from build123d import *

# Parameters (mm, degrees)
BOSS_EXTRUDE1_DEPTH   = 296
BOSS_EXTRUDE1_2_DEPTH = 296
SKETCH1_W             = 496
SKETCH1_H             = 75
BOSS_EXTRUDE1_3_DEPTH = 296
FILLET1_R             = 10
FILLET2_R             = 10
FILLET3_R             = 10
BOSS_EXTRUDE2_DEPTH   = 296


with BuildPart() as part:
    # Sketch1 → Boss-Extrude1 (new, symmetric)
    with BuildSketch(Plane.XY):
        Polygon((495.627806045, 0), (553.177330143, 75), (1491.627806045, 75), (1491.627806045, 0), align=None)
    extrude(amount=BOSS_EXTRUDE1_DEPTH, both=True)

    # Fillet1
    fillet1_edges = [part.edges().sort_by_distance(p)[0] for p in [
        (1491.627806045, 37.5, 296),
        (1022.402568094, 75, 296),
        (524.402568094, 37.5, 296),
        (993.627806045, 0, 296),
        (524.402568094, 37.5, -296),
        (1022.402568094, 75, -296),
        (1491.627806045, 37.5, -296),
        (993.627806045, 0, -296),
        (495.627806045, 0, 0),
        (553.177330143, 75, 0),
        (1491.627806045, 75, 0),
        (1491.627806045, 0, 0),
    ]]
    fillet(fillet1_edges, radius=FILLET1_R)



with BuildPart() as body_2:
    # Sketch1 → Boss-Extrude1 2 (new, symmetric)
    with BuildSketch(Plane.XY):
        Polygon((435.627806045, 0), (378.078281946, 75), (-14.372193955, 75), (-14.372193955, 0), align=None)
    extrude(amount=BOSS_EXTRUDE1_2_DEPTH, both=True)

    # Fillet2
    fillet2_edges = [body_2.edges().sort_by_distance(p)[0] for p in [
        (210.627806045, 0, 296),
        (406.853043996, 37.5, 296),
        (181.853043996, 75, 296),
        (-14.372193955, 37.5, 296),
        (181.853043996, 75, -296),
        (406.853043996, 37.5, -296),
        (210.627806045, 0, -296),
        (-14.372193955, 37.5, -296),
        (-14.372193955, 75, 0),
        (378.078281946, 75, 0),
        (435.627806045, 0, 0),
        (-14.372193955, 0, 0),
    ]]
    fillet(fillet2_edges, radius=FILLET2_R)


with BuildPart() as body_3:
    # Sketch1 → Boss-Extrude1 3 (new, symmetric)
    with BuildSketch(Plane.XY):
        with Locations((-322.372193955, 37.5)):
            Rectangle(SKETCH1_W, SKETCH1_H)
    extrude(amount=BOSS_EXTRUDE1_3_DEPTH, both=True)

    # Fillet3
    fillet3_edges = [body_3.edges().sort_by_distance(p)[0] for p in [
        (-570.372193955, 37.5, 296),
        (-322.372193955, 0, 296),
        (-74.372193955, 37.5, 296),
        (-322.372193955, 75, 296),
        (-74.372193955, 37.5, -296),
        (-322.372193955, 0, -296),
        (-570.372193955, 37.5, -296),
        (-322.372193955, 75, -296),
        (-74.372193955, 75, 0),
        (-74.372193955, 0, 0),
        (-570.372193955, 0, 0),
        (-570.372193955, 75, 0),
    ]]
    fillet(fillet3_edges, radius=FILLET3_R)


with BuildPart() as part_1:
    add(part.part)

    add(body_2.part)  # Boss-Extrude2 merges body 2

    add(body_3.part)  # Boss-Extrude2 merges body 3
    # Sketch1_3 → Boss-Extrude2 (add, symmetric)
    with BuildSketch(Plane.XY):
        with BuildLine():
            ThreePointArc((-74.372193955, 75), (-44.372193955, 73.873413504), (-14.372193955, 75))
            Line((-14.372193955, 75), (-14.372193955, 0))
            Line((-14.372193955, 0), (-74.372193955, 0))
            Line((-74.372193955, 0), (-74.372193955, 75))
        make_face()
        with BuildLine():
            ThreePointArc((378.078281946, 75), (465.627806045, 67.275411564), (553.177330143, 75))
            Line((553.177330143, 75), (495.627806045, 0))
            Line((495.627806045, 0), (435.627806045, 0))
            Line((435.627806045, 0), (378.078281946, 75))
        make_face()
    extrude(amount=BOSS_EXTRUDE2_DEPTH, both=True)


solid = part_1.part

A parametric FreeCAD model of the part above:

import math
import FreeCAD as App
import Part
import Sketcher

V = App.Vector
Q = App.Units.Quantity

doc = App.newDocument("Part")
body = doc.addObject("PartDesign::Body", "Body")

sketch1 = body.newObject("Sketcher::SketchObject", "Sketch")
sketch1.AttachmentSupport = (doc.getObject("XY_Plane"), [""])
sketch1.MapMode = "FlatFace"
sketch1.addGeometry([
    Part.LineSegment(V(553, 75, 0), V(496, 0, 0)),
    Part.LineSegment(V(496, 0, 0), V(1492, 0, 0)),
    Part.LineSegment(V(1492, 0, 0), V(1492, 75, 0)),
    Part.LineSegment(V(1492, 75, 0), V(553, 75, 0)),
], False)
sketch1.addConstraint([
    Sketcher.Constraint("Coincident", 0, 2, 1, 1),
    Sketcher.Constraint("Coincident", 1, 2, 2, 1),
    Sketcher.Constraint("Coincident", 2, 2, 3, 1),
    Sketcher.Constraint("Coincident", 3, 2, 0, 1),
    Sketcher.Constraint("Horizontal", 1),
    Sketcher.Constraint("Vertical", 2),
    Sketcher.Constraint("Horizontal", 3),
    Sketcher.Constraint("PointOnObject", 0, 2, -1),
    Sketcher.Constraint("DistanceX", 1, 1, 1, 2, Q("996 mm")),
    Sketcher.Constraint("DistanceY", 2, 1, 2, 2, Q("75 mm")),
    Sketcher.Constraint("Angle", 0, Q("-127.5 deg")),
    Sketcher.Constraint("DistanceX", -1, 1, 3, 2, Q("553.17733 mm")),
])
pad1 = body.newObject("PartDesign::Pad", "Pad")
pad1.Profile = sketch1
pad1.Length = 592
pad1.Midplane = True
doc.recompute()

fillet = body.newObject("PartDesign::Fillet", "Fillet")
fillet.Base = (pad1, ["Edge1"])
fillet.UseAllEdges = True
fillet.Radius = 10
body2 = doc.addObject("PartDesign::Body", "Body001")

sketch2 = body2.newObject("Sketcher::SketchObject", "Sketch001")
sketch2.AttachmentSupport = (doc.getObject("XY_Plane001"), [""])
sketch2.MapMode = "FlatFace"
sketch2.addGeometry([
    Part.LineSegment(V(436, 0, 0), V(378, 75, 0)),
    Part.LineSegment(V(378, 75, 0), V(-14, 75, 0)),
    Part.LineSegment(V(-14, 75, 0), V(-14, 0, 0)),
    Part.LineSegment(V(-14, 0, 0), V(436, 0, 0)),
], False)
sketch2.addConstraint([
    Sketcher.Constraint("Coincident", 0, 2, 1, 1),
    Sketcher.Constraint("Coincident", 1, 2, 2, 1),
    Sketcher.Constraint("Coincident", 2, 2, 3, 1),
    Sketcher.Constraint("Coincident", 3, 2, 0, 1),
    Sketcher.Constraint("Horizontal", 1),
    Sketcher.Constraint("Vertical", 2),
    Sketcher.Constraint("Horizontal", 3),
    Sketcher.Constraint("PointOnObject", 2, 2, -1),
    Sketcher.Constraint("DistanceX", 3, 1, 3, 2, Q("450 mm")),
    Sketcher.Constraint("DistanceY", 2, 2, 2, 1, Q("75 mm")),
    Sketcher.Constraint("Angle", 0, Q("127.5 deg")),
    Sketcher.Constraint("DistanceX", -1, 1, 0, 2, Q("378.078282 mm")),
])
pad2 = body2.newObject("PartDesign::Pad", "Pad001")
pad2.Profile = sketch2
pad2.Length = 592
pad2.Midplane = True
doc.recompute()

fillet2 = body2.newObject("PartDesign::Fillet", "Fillet001")
fillet2.Base = (pad2, ["Edge1"])
fillet2.UseAllEdges = True
fillet2.Radius = 10
body3 = doc.addObject("PartDesign::Body", "Body002")

sketch3 = body3.newObject("Sketcher::SketchObject", "Sketch002")
sketch3.AttachmentSupport = (doc.getObject("XY_Plane002"), [""])
sketch3.MapMode = "FlatFace"
sketch3.addGeometry([
    Part.LineSegment(V(-570, 75, 0), V(-570, 0, 0)),
    Part.LineSegment(V(-570, 0, 0), V(-74, 0, 0)),
    Part.LineSegment(V(-74, 0, 0), V(-74, 75, 0)),
    Part.LineSegment(V(-74, 75, 0), V(-570, 75, 0)),
], False)
sketch3.addConstraint([
    Sketcher.Constraint("Coincident", 0, 2, 1, 1),
    Sketcher.Constraint("Coincident", 1, 2, 2, 1),
    Sketcher.Constraint("Coincident", 2, 2, 3, 1),
    Sketcher.Constraint("Coincident", 3, 2, 0, 1),
    Sketcher.Constraint("Vertical", 0),
    Sketcher.Constraint("Horizontal", 1),
    Sketcher.Constraint("Vertical", 2),
    Sketcher.Constraint("Horizontal", 3),
    Sketcher.Constraint("PointOnObject", 0, 2, -1),
    Sketcher.Constraint("DistanceX", 1, 1, 1, 2, Q("496 mm")),
    Sketcher.Constraint("DistanceY", 0, 2, 0, 1, Q("75 mm")),
    Sketcher.Constraint("DistanceX", 0, 2, -1, 1, Q("570.372194 mm")),
])
pad3 = body3.newObject("PartDesign::Pad", "Pad002")
pad3.Profile = sketch3
pad3.Length = 592
pad3.Midplane = True
doc.recompute()

fillet3 = body3.newObject("PartDesign::Fillet", "Fillet002")
fillet3.Base = (pad3, ["Edge1"])
fillet3.UseAllEdges = True
fillet3.Radius = 10
body.AllowCompound = True
doc.recompute()

boolean = body.newObject("PartDesign::Boolean", "Boolean")
boolean.Type = "Fuse"
boolean.addObjects([body2])
doc.recompute()

boolean2 = body.newObject("PartDesign::Boolean", "Boolean001")
boolean2.Type = "Fuse"
boolean2.addObjects([body3])

sketch4 = body.newObject("Sketcher::SketchObject", "Sketch003")
sketch4.AttachmentSupport = (doc.getObject("XY_Plane"), [""])
sketch4.MapMode = "FlatFace"
sketch4.addGeometry([
    Part.ArcOfCircle(Part.Circle(V(-44, 474, 0), V(0, 0, 1), 400), math.radians(-94.3), math.radians(-85.7)),
    Part.LineSegment(V(-74, 75, 0), V(-74, 0, 0)),
    Part.LineSegment(V(-74, 0, 0), V(-14, 0, 0)),
    Part.LineSegment(V(-14, 0, 0), V(-14, 75, 0)),
    Part.ArcOfCircle(Part.Circle(V(466, 567, 0), V(0, 0, 1), 500), math.radians(-100), math.radians(-80)),
    Part.LineSegment(V(378, 75, 0), V(436, 0, 0)),
    Part.LineSegment(V(436, 0, 0), V(496, 0, 0)),
    Part.LineSegment(V(496, 0, 0), V(553, 75, 0)),
], False)
sketch4.addConstraint([
    Sketcher.Constraint("Coincident", 0, 1, 1, 1),
    Sketcher.Constraint("Coincident", 1, 2, 2, 1),
    Sketcher.Constraint("Coincident", 2, 2, 3, 1),
    Sketcher.Constraint("Coincident", 3, 2, 0, 2),
    Sketcher.Constraint("Coincident", 4, 1, 5, 1),
    Sketcher.Constraint("Coincident", 5, 2, 6, 1),
    Sketcher.Constraint("Coincident", 6, 2, 7, 1),
    Sketcher.Constraint("Coincident", 7, 2, 4, 2),
    Sketcher.Constraint("Vertical", 1),
    Sketcher.Constraint("Horizontal", 2),
    Sketcher.Constraint("Vertical", 3),
    Sketcher.Constraint("Horizontal", 6),
    Sketcher.Constraint("PointOnObject", 1, 2, -1),
    Sketcher.Constraint("PointOnObject", 5, 2, -1),
    Sketcher.Constraint("Horizontal", 0, 1, 3, 2),
    Sketcher.Constraint("Horizontal", 3, 2, 4, 1),
    Sketcher.Constraint("Horizontal", 4, 1, 7, 2),
    Sketcher.Constraint("Equal", 2, 6),
    Sketcher.Constraint("Equal", 5, 7),
    Sketcher.Constraint("Radius", 0, Q("400 mm")),
    Sketcher.Constraint("Radius", 4, Q("500 mm")),
    Sketcher.Constraint("DistanceX", 2, 1, 2, 2, Q("60 mm")),
    Sketcher.Constraint("DistanceY", 1, 2, 1, 1, Q("75 mm")),
    Sketcher.Constraint("Angle", 5, Q("-52.5 deg")),
    Sketcher.Constraint("DistanceX", 0, 3, 4, 3, Q("510 mm")),
    Sketcher.Constraint("DistanceX", -1, 1, 7, 2, Q("553.17733 mm")),
])
pad4 = body.newObject("PartDesign::Pad", "Pad003")
pad4.Profile = sketch4
pad4.Length = 592
pad4.Midplane = True

doc.recompute()
